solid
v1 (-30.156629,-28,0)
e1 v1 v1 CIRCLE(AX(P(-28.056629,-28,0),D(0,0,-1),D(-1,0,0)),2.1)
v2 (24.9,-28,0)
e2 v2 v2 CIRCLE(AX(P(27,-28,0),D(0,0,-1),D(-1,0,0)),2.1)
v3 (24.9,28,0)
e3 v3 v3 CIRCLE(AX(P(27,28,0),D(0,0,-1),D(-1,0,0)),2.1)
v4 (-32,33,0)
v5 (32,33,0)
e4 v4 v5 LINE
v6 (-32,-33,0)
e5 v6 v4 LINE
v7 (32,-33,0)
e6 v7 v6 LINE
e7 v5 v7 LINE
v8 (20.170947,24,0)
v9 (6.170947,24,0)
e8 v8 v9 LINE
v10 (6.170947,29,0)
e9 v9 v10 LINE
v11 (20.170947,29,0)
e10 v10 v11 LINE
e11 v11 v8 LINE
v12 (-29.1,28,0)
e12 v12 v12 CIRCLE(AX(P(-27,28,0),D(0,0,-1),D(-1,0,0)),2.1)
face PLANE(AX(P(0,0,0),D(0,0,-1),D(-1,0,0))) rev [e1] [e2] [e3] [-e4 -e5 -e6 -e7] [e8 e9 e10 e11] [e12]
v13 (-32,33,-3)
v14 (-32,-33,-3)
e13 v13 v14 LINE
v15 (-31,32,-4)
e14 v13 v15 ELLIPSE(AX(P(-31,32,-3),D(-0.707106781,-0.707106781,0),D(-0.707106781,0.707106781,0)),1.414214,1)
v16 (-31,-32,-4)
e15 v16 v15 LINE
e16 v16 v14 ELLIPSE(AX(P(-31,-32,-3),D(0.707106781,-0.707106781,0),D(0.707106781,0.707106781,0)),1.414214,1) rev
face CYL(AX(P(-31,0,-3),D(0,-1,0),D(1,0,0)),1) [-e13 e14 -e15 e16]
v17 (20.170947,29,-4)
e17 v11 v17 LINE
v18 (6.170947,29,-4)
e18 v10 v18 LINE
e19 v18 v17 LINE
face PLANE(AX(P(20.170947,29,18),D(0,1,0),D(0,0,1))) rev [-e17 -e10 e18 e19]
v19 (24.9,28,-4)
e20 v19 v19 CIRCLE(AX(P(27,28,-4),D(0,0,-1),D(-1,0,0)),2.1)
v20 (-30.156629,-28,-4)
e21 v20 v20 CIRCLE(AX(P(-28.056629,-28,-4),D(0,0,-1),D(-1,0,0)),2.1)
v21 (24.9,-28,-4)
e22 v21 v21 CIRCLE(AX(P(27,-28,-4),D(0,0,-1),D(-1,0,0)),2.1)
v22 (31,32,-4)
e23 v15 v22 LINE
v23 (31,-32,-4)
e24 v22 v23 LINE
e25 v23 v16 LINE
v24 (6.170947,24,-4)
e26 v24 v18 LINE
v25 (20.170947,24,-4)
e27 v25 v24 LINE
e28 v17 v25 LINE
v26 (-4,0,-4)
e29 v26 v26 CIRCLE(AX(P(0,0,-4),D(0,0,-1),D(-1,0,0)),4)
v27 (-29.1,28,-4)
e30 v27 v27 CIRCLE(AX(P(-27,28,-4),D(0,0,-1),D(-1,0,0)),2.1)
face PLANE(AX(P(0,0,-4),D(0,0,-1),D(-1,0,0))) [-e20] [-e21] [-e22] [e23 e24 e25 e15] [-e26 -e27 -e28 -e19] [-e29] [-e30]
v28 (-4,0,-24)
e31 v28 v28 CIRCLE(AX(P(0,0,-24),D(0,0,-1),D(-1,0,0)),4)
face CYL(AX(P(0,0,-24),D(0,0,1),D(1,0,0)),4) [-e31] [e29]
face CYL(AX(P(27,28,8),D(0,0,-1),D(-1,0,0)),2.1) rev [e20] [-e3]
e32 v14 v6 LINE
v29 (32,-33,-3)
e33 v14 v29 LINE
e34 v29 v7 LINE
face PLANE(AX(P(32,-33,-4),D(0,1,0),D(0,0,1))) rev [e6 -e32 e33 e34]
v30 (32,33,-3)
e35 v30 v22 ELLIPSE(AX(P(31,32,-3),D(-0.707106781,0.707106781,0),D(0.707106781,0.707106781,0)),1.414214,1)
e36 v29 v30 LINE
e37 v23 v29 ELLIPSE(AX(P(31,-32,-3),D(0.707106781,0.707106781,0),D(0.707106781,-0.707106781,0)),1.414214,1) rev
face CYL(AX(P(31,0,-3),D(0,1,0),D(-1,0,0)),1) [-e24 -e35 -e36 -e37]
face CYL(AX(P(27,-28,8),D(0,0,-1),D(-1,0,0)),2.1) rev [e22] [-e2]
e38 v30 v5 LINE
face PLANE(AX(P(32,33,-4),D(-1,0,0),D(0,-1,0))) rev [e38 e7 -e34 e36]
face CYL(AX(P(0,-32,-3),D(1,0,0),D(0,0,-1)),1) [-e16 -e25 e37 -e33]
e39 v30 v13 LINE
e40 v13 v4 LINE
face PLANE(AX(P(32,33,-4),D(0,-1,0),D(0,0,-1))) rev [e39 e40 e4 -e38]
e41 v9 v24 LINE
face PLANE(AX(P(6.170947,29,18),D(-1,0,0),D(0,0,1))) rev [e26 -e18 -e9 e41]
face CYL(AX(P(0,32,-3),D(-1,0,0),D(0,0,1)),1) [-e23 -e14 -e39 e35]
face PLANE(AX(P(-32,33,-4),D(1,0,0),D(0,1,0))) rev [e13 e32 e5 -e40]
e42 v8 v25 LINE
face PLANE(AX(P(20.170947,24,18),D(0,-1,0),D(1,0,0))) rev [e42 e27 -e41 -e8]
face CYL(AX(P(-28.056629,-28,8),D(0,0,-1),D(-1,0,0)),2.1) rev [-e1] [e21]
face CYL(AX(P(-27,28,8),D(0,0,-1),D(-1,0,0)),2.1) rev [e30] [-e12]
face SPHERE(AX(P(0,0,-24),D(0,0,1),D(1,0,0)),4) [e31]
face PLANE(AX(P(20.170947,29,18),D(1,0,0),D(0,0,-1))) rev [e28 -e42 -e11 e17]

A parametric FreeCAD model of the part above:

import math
import FreeCAD as App
import Part
import Sketcher


def edges_at(feature, points):
    """Names of the edges that pass closest to the given points."""
    edges = feature.Shape.Edges
    near = lambda p: min(range(len(edges)), key=lambda i: edges[i].distToShape(Part.Vertex(*p))[0])
    return sorted({f"Edge{near(p) + 1}" for p in points})


def add_polygon(sketch, points):
    """Adds a closed chain of lines whose ends are joined by coincident constraints."""
    first, n = sketch.GeometryCount, len(points)
    for a, b in zip(points, points[1:] + points[:1]):
        sketch.addGeometry(Part.LineSegment(App.Vector(*a, 0), App.Vector(*b, 0)), False)
    for i in range(n):
        sketch.addConstraint(Sketcher.Constraint("Coincident", first + i, 2, first + (i + 1) % n, 1))

doc = App.newDocument("Part")
body = doc.addObject("PartDesign::Body", "Body")

# Sketch on XY plane
sketch1 = body.newObject("Sketcher::SketchObject", "Sketch")
sketch1.AttachmentSupport = (doc.getObject("XY_Plane"), [""])
sketch1.MapMode = "FlatFace"
sketch1.addGeometry(Part.Circle(App.Vector(0, 0, 0), App.Vector(0, 0, 1), 21), False)
sketch1.addConstraint(Sketcher.Constraint("Coincident", 0, 3, -1, 1))
sketch1.addConstraint(Sketcher.Constraint("Diameter", 0, 42.0))
pad1 = body.newObject("PartDesign::Pad", "Pad")
pad1.Profile = sketch1
pad1.Length = 8

# Sketch on XY plane
sketch2 = body.newObject("Sketcher::SketchObject", "Sketch001")
sketch2.AttachmentSupport = (doc.getObject("XY_Plane"), [""])
sketch2.MapMode = "FlatFace"
sketch2.addGeometry(Part.Circle(App.Vector(0, 0, 0), App.Vector(0, 0, 1), 2), False)
sketch2.addConstraint(Sketcher.Constraint("Coincident", 0, 3, -1, 1))
sketch2.addConstraint(Sketcher.Constraint("Diameter", 0, 4.0))
pocket1 = body.newObject("PartDesign::Pocket", "Pocket")
pocket1.Profile = sketch2
pocket1.Length = 10
pocket1.Reversed = True

# Sketch on XY plane
sketch3 = body.newObject("Sketcher::SketchObject", "Sketch002")
sketch3.AttachmentSupport = (doc.getObject("XY_Plane"), [""])
sketch3.MapMode = "FlatFace"
sketch3.addGeometry(Part.Circle(App.Vector(-16, 0, 0), App.Vector(0, 0, 1), 1.1), False)
sketch3.addConstraint(Sketcher.Constraint("PointOnObject", 0, 3, -1))
sketch3.addConstraint(Sketcher.Constraint("Diameter", 0, 2.2))
sketch3.addConstraint(Sketcher.Constraint("DistanceX", 0, 3, -1, 1, 16.0))
pocket2 = body.newObject("PartDesign::Pocket", "Pocket001")
pocket2.Profile = sketch3
pocket2.Length = 10
pocket2.Reversed = True

# Sketch on XY plane
sketch4 = body.newObject("Sketcher::SketchObject", "Sketch003")
sketch4.AttachmentSupport = (doc.getObject("XY_Plane"), [""])
sketch4.MapMode = "FlatFace"
sketch4.addGeometry(Part.Circle(App.Vector(16, 0, 0), App.Vector(0, 0, 1), 1.1), False)
sketch4.addConstraint(Sketcher.Constraint("PointOnObject", 0, 3, -1))
sketch4.addConstraint(Sketcher.Constraint("Diameter", 0, 2.2))
sketch4.addConstraint(Sketcher.Constraint("DistanceX", -1, 1, 0, 3, 16.0))
pocket3 = body.newObject("PartDesign::Pocket", "Pocket002")
pocket3.Profile = sketch4
pocket3.Length = 10
pocket3.Reversed = True

# Sketch on XY plane
sketch5 = body.newObject("Sketcher::SketchObject", "Sketch004")
sketch5.AttachmentSupport = (doc.getObject("XY_Plane"), [""])
sketch5.MapMode = "FlatFace"
add_polygon(sketch5, [(32, 33), (32, -33), (-32, -33), (-32, 33)])  # lines 0-3
sketch5.addConstraint(Sketcher.Constraint("Vertical", 0))
sketch5.addConstraint(Sketcher.Constraint("Horizontal", 1))
sketch5.addConstraint(Sketcher.Constraint("Vertical", 2))
sketch5.addConstraint(Sketcher.Constraint("Horizontal", 3))
sketch5.addConstraint(Sketcher.Constraint("Symmetric", 0, 2, 2, 2, -1, 1))
sketch5.addConstraint(Sketcher.Constraint("DistanceX", 1, 2, 1, 1, 64.0))
sketch5.addConstraint(Sketcher.Constraint("DistanceY", 0, 2, 0, 1, 66.0))
pad2 = body.newObject("PartDesign::Pad", "Pad001")
pad2.Profile = sketch5
pad2.Length = 4
pad2.Reversed = True
doc.recompute()

fillet = body.newObject("PartDesign::Fillet", "Fillet")
fillet.Base = (pad2, edges_at(pad2, [
    (-32, 0, -4),
    (0, 33, -4),
    (32, 0, -4),
    (0, -33, -4),
]))
fillet.Radius = 1

# Sketch on XY plane
sketch6 = body.newObject("Sketcher::SketchObject", "Sketch005")
sketch6.AttachmentSupport = (doc.getObject("XY_Plane"), [""])
sketch6.MapMode = "FlatFace"
sketch6.AttachmentOffset = App.Placement(App.Vector(0, 0, -4), App.Rotation())
add_polygon(sketch6, [(20, 29), (20, 24), (6, 24), (6, 29)])  # lines 0-3
sketch6.addConstraint(Sketcher.Constraint("Vertical", 0))
sketch6.addConstraint(Sketcher.Constraint("Horizontal", 1))
sketch6.addConstraint(Sketcher.Constraint("Vertical", 2))
sketch6.addConstraint(Sketcher.Constraint("Horizontal", 3))
sketch6.addConstraint(Sketcher.Constraint("DistanceX", 1, 2, 1, 1, 14.0))
sketch6.addConstraint(Sketcher.Constraint("DistanceY", 0, 2, 0, 1, 5.0))
sketch6.addConstraint(Sketcher.Constraint("DistanceY", -1, 1, 0, 2, 24.0))
sketch6.addConstraint(Sketcher.Constraint("DistanceX", -1, 1, 0, 2, 20.170947))
pocket4 = body.newObject("PartDesign::Pocket", "Pocket003")
pocket4.Profile = sketch6
pocket4.Length = 22
pocket4.Reversed = True

# Sketch on XY plane
sketch7 = body.newObject("Sketcher::SketchObject", "Sketch006")
sketch7.AttachmentSupport = (doc.getObject("XY_Plane"), [""])
sketch7.MapMode = "FlatFace"
sketch7.AttachmentOffset = App.Placement(App.Vector(0, 0, 8), App.Rotation())
sketch7.addGeometry(Part.Circle(App.Vector(0, 0, 0), App.Vector(0, 0, 1), 21), False)
sketch7.addConstraint(Sketcher.Constraint("Coincident", 0, 3, -1, 1))
sketch7.addConstraint(Sketcher.Constraint("Diameter", 0, 42.0))
pocket5 = body.newObject("PartDesign::Pocket", "Pocket004")
pocket5.Profile = sketch7
pocket5.Length = 8

# Sketch on XY plane
sketch8 = body.newObject("Sketcher::SketchObject", "Sketch007")
sketch8.AttachmentSupport = (doc.getObject("XY_Plane"), [""])
sketch8.MapMode = "FlatFace"
sketch8.AttachmentOffset = App.Placement(App.Vector(0, 0, -4), App.Rotation())
sketch8.addGeometry(Part.Circle(App.Vector(27, 28, 0), App.Vector(0, 0, 1), 2.1), False)
sketch8.addGeometry(Part.Circle(App.Vector(27, -28, 0), App.Vector(0, 0, 1), 2.1), False)
sketch8.addGeometry(Part.Circle(App.Vector(-28.1, -28, 0), App.Vector(0, 0, 1), 2.1), False)
sketch8.addGeometry(Part.Circle(App.Vector(-27, 28, 0), App.Vector(0, 0, 1), 2.1), False)
sketch8.addConstraint(Sketcher.Constraint("Equal", 0, 1))
sketch8.addConstraint(Sketcher.Constraint("Equal", 1, 2))
sketch8.addConstraint(Sketcher.Constraint("Equal", 2, 3))
sketch8.addConstraint(Sketcher.Constraint("Symmetric", 1, 3, 3, 3, -1, 1))
sketch8.addConstraint(Sketcher.Constraint("Symmetric", 0, 3, 3, 3, -2))
sketch8.addConstraint(Sketcher.Constraint("Horizontal", 1, 3, 2, 3))
sketch8.addConstraint(Sketcher.Constraint("Diameter", 0, 4.2))
sketch8.addConstraint(Sketcher.Constraint("DistanceX", -1, 1, 0, 3, 27.0))
sketch8.addConstraint(Sketcher.Constraint("DistanceY", -1, 1, 0, 3, 28.0))
sketch8.addConstraint(Sketcher.Constraint("DistanceX", 2, 3, -1, 1, 28.056629))
pocket6 = body.newObject("PartDesign::Pocket", "Pocket005")
pocket6.Profile = sketch8
pocket6.Length = 12
pocket6.Reversed = True

# Sketch on XY plane
sketch9 = body.newObject("Sketcher::SketchObject", "Sketch008")
sketch9.AttachmentSupport = (doc.getObject("XY_Plane"), [""])
sketch9.MapMode = "FlatFace"
sketch9.AttachmentOffset = App.Placement(App.Vector(0, 0, -4), App.Rotation())
sketch9.addGeometry(Part.Circle(App.Vector(0, 0, 0), App.Vector(0, 0, 1), 4), False)
sketch9.addConstraint(Sketcher.Constraint("Coincident", 0, 3, -1, 1))
sketch9.addConstraint(Sketcher.Constraint("Diameter", 0, 8.0))
pad3 = body.newObject("PartDesign::Pad", "Pad002")
pad3.Profile = sketch9
pad3.Length = 20
pad3.Reversed = True

# Sketch on XZ plane
sketch10 = body.newObject("Sketcher::SketchObject", "Sketch009")
sketch10.AttachmentSupport = (doc.getObject("XZ_Plane"), [""])
sketch10.MapMode = "FlatFace"
sketch10.addGeometry(Part.LineSegment(App.Vector(-4, -24, 0), App.Vector(0, -24, 0)), False)
sketch10.addGeometry(Part.LineSegment(App.Vector(0, -24, 0), App.Vector(0, -28, 0)), False)
sketch10.addGeometry(Part.ArcOfCircle(Part.Circle(App.Vector(0, -24, 0), App.Vector(0, 0, 1), 4), math.radians(180), math.radians(270)), False)
sketch10.addConstraint(Sketcher.Constraint("Coincident", 0, 2, 1, 1))
sketch10.addConstraint(Sketcher.Constraint("Coincident", 1, 2, 2, 2))
sketch10.addConstraint(Sketcher.Constraint("Coincident", 2, 1, 0, 1))
sketch10.addConstraint(Sketcher.Constraint("Horizontal", 0))
sketch10.addConstraint(Sketcher.Constraint("Vertical", 1))
sketch10.addConstraint(Sketcher.Constraint("Coincident", 0, 2, 2, 3))
sketch10.addConstraint(Sketcher.Constraint("PointOnObject", 2, 3, -2))
sketch10.addConstraint(Sketcher.Constraint("Radius", 2, 4.0))
sketch10.addConstraint(Sketcher.Constraint("DistanceY", 2, 3, -1, 1, 24.0))
revolution = body.newObject("PartDesign::Revolution", "Revolution")
revolution.Profile = sketch10
revolution.ReferenceAxis = (sketch10, ["V_Axis"])
revolution.Angle = 360

doc.recompute()
